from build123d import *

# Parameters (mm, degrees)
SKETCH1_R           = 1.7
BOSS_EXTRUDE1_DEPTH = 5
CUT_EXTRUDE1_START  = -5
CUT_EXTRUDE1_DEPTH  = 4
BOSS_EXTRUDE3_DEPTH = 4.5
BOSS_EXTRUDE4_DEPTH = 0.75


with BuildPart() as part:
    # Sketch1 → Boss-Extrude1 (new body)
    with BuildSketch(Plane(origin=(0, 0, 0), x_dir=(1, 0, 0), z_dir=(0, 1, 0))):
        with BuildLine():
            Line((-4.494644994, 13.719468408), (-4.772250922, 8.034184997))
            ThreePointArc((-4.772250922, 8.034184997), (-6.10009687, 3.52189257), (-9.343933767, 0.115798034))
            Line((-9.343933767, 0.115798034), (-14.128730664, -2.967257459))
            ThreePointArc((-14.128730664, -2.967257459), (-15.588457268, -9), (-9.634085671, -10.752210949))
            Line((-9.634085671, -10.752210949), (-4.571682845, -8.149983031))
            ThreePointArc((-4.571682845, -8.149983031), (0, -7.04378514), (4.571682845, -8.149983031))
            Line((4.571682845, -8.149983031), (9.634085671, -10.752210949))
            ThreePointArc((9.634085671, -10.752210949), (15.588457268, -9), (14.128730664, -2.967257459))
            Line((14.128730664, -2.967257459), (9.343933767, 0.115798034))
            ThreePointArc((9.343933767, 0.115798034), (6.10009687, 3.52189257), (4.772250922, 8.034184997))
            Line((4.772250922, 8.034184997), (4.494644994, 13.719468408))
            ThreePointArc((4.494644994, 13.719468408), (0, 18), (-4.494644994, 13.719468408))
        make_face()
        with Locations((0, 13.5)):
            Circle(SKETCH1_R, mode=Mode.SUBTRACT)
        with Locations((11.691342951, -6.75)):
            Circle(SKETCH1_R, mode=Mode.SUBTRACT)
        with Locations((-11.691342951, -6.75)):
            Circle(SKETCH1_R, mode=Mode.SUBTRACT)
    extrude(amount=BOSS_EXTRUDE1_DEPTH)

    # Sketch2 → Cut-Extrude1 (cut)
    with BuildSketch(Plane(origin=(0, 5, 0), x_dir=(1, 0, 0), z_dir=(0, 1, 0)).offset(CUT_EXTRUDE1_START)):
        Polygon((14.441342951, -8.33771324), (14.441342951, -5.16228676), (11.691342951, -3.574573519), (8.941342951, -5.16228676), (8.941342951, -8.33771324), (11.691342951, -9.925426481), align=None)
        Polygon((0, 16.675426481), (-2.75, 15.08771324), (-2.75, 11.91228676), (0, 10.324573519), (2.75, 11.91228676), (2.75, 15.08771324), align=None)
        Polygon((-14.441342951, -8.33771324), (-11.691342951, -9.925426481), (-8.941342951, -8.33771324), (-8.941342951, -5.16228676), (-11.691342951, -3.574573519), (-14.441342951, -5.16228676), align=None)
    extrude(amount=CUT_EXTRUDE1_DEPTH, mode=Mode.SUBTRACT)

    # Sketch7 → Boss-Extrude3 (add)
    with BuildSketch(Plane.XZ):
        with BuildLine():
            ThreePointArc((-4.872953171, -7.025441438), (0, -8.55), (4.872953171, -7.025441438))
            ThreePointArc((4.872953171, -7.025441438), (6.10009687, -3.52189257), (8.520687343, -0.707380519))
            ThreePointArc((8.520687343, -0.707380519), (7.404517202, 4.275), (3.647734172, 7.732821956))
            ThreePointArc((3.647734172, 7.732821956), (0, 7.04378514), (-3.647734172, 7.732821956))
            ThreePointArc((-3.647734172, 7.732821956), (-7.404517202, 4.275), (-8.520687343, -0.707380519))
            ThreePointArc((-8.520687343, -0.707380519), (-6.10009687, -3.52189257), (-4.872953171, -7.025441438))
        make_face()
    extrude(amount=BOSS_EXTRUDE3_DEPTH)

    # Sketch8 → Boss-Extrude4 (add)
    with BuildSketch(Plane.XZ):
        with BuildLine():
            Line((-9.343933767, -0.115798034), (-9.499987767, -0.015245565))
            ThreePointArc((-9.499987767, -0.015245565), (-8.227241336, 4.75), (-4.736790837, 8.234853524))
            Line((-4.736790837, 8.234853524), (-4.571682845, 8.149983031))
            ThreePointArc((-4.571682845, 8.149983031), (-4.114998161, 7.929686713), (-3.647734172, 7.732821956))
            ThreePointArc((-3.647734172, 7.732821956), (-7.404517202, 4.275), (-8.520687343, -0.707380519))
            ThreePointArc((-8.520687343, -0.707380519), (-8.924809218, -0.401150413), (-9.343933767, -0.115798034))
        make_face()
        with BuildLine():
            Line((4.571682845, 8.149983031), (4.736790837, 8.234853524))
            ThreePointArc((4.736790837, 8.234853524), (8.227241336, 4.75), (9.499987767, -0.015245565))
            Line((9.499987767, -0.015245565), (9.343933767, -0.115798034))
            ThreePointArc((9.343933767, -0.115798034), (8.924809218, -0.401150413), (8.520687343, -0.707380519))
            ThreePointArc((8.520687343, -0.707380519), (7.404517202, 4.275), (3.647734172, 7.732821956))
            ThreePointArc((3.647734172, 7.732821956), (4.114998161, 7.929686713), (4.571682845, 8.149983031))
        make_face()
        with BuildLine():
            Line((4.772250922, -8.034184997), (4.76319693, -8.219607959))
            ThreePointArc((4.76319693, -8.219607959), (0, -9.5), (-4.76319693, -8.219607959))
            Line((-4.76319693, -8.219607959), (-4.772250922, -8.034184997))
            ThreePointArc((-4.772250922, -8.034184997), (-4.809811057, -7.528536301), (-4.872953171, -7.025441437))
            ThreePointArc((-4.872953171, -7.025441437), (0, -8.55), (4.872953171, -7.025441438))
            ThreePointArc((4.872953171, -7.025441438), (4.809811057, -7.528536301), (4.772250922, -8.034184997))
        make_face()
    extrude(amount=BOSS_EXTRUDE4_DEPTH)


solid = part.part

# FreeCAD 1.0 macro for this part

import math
import FreeCAD as App
import Part
import Sketcher
Q = App.Units.Quantity


def add_polygon(sketch, points):
    """Adds a closed chain of lines whose ends are joined by coincident constraints."""
    first, n = sketch.GeometryCount, len(points)
    for a, b in zip(points, points[1:] + points[:1]):
        sketch.addGeometry(Part.LineSegment(App.Vector(*a, 0), App.Vector(*b, 0)), False)
    for i in range(n):
        sketch.addConstraint(Sketcher.Constraint("Coincident", first + i, 2, first + (i + 1) % n, 1))

doc = App.newDocument("Part")
body = doc.addObject("PartDesign::Body", "Body")

# Sketch on XZ plane
sketch1 = doc.addObject("Sketcher::SketchObject", "Sketch")
body.addObject(sketch1)
sketch1.AttachmentSupport = (doc.XZ_Plane, [""])
sketch1.MapMode = "FlatFace"
sketch1.addGeometry(Part.LineSegment(App.Vector(-4.494645, -13.719468, 0), App.Vector(-4.772251, -8.034185, 0)), False)
sketch1.addGeometry(Part.ArcOfCircle(Part.Circle(App.Vector(-14.760351, -8.521893, 0), App.Vector(0, 0, 1), 10), math.radians(2.795468), math.radians(57.204532)), False)
sketch1.addGeometry(Part.LineSegment(App.Vector(-9.343934, -0.115798, 0), App.Vector(-14.128731, 2.967257, 0)), False)
sketch1.addGeometry(Part.ArcOfCircle(Part.Circle(App.Vector(-11.691343, 6.75, 0), App.Vector(0, 0, 1), 4.5), math.radians(62.795468), math.radians(237.204532)), False)
sketch1.addGeometry(Part.LineSegment(App.Vector(-9.634086, 10.752211, 0), App.Vector(-4.571683, 8.149983, 0)), False)
sketch1.addGeometry(Part.ArcOfCircle(Part.Circle(App.Vector(0, 17.043785, 0), App.Vector(0, 0, 1), 10), math.radians(-117.204532), math.radians(-62.795468)), False)
sketch1.addGeometry(Part.LineSegment(App.Vector(4.571683, 8.149983, 0), App.Vector(9.634086, 10.752211, 0)), False)
sketch1.addGeometry(Part.ArcOfCircle(Part.Circle(App.Vector(11.691343, 6.75, 0), App.Vector(0, 0, 1), 4.5), math.radians(-57.204532), math.radians(117.204532)), False)
sketch1.addGeometry(Part.LineSegment(App.Vector(14.128731, 2.967257, 0), App.Vector(9.343934, -0.115798, 0)), False)
sketch1.addGeometry(Part.ArcOfCircle(Part.Circle(App.Vector(14.760351, -8.521893, 0), App.Vector(0, 0, 1), 10), math.radians(122.795468), math.radians(177.204532)), False)
sketch1.addGeometry(Part.LineSegment(App.Vector(4.772251, -8.034185, 0), App.Vector(4.494645, -13.719468, 0)), False)
sketch1.addGeometry(Part.ArcOfCircle(Part.Circle(App.Vector(0, -13.5, 0), App.Vector(0, 0, 1), 4.5), math.radians(-177.204532), math.radians(-2.795468)), False)
sketch1.addGeometry(Part.Circle(App.Vector(-11.691343, 6.75, 0), App.Vector(0, 0, 1), 1.7), False)
sketch1.addGeometry(Part.Circle(App.Vector(11.691343, 6.75, 0), App.Vector(0, 0, 1), 1.7), False)
sketch1.addGeometry(Part.Circle(App.Vector(0, -13.5, 0), App.Vector(0, 0, 1), 1.7), False)
sketch1.addConstraint(Sketcher.Constraint("Tangent", 0, 2, 1, 1))
sketch1.addConstraint(Sketcher.Constraint("Tangent", 1, 2, 2, 1))
sketch1.addConstraint(Sketcher.Constraint("Tangent", 2, 2, 3, 2))
sketch1.addConstraint(Sketcher.Constraint("Tangent", 3, 1, 4, 1))
sketch1.addConstraint(Sketcher.Constraint("Tangent", 4, 2, 5, 1))
sketch1.addConstraint(Sketcher.Constraint("Tangent", 5, 2, 6, 1))
sketch1.addConstraint(Sketcher.Constraint("Tangent", 6, 2, 7, 2))
sketch1.addConstraint(Sketcher.Constraint("Tangent", 7, 1, 8, 1))
sketch1.addConstraint(Sketcher.Constraint("Tangent", 8, 2, 9, 1))
sketch1.addConstraint(Sketcher.Constraint("Tangent", 9, 2, 10, 1))
sketch1.addConstraint(Sketcher.Constraint("Tangent", 10, 2, 11, 2))
sketch1.addConstraint(Sketcher.Constraint("Tangent", 11, 1, 0, 1))
sketch1.addConstraint(Sketcher.Constraint("Coincident", 12, 3, 3, 3))
sketch1.addConstraint(Sketcher.Constraint("Coincident", 13, 3, 7, 3))
sketch1.addConstraint(Sketcher.Constraint("Coincident", 14, 3, 11, 3))
sketch1.addConstraint(Sketcher.Constraint("Equal", 1, 5))
sketch1.addConstraint(Sketcher.Constraint("Equal", 3, 7))
sketch1.addConstraint(Sketcher.Constraint("Equal", 5, 9))
sketch1.addConstraint(Sketcher.Constraint("Equal", 7, 11))
sketch1.addConstraint(Sketcher.Constraint("Equal", 12, 13))
sketch1.addConstraint(Sketcher.Constraint("Equal", 13, 14))
sketch1.addConstraint(Sketcher.Constraint("Symmetric", 3, 3, 7, 3, -2))
sketch1.addConstraint(Sketcher.Constraint("Symmetric", 1, 3, 9, 3, -2))
sketch1.addConstraint(Sketcher.Constraint("PointOnObject", 5, 3, -2))
sketch1.addConstraint(Sketcher.Constraint("PointOnObject", 11, 3, -2))
sketch1.addConstraint(Sketcher.Constraint("Equal", 0, 2))
sketch1.addConstraint(Sketcher.Constraint("Equal", 2, 4))
sketch1.addConstraint(Sketcher.Constraint("Radius", 1, Q("10 mm")))
sketch1.addConstraint(Sketcher.Constraint("Diameter", 12, Q("3.4 mm")))
sketch1.addConstraint(Sketcher.Constraint("Radius", 3, Q("4.5 mm")))
sketch1.addConstraint(Sketcher.Constraint("DistanceY", 11, 3, -1, 1, Q("13.5 mm")))
sketch1.addConstraint(Sketcher.Constraint("DistanceY", -1, 1, 3, 3, Q("6.75 mm")))
sketch1.addConstraint(Sketcher.Constraint("DistanceY", 1, 2, -1, 1, Q("0.115798 mm")))
sketch1.addConstraint(Sketcher.Constraint("DistanceX", 1, 3, 9, 3, Q("29.520702 mm")))
pad1 = doc.addObject("PartDesign::Pad", "Pad")
body.addObject(pad1)
pad1.Profile = sketch1
pad1.Length = 5
pad1.Reversed = True

# Sketch on XZ plane
sketch2 = doc.addObject("Sketcher::SketchObject", "Sketch001")
body.addObject(sketch2)
sketch2.AttachmentSupport = (doc.XZ_Plane, [""])
sketch2.MapMode = "FlatFace"
add_polygon(sketch2, [(14.441343, 8.337713), (14.441343, 5.162287), (11.691343, 3.574574), (8.941343, 5.162287), (8.941343, 8.337713), (11.691343, 9.925426)])  # lines 0-5
add_polygon(sketch2, [(0, -16.675426), (-2.75, -15.087713), (-2.75, -11.912287), (0, -10.324574), (2.75, -11.912287), (2.75, -15.087713)])  # lines 6-11
add_polygon(sketch2, [(-14.441343, 8.337713), (-11.691343, 9.925426), (-8.941343, 8.337713), (-8.941343, 5.162287), (-11.691343, 3.574574), (-14.441343, 5.162287)])  # lines 12-17
sketch2.addConstraint(Sketcher.Constraint("Vertical", 0))
sketch2.addConstraint(Sketcher.Constraint("Vertical", 3))
sketch2.addConstraint(Sketcher.Constraint("Vertical", 7))
sketch2.addConstraint(Sketcher.Constraint("Vertical", 10))
sketch2.addConstraint(Sketcher.Constraint("Vertical", 14))
sketch2.addConstraint(Sketcher.Constraint("Vertical", 17))
sketch2.addConstraint(Sketcher.Constraint("Symmetric", 7, 2, 9, 2, -2))
sketch2.addConstraint(Sketcher.Constraint("Symmetric", 4, 2, 12, 2, -2))
sketch2.addConstraint(Sketcher.Constraint("Symmetric", 3, 2, 13, 2, -2))
sketch2.addConstraint(Sketcher.Constraint("Symmetric", 1, 2, 15, 2, -2))
sketch2.addConstraint(Sketcher.Constraint("Symmetric", 0, 2, 16, 2, -2))
sketch2.addConstraint(Sketcher.Constraint("PointOnObject", 8, 2, -2))
sketch2.addConstraint(Sketcher.Constraint("PointOnObject", 11, 2, -2))
sketch2.addConstraint(Sketcher.Constraint("Parallel", 1, 4))
sketch2.addConstraint(Sketcher.Constraint("Parallel", 2, 5))
sketch2.addConstraint(Sketcher.Constraint("Parallel", 5, 6))
sketch2.addConstraint(Sketcher.Constraint("Parallel", 4, 8))
sketch2.addConstraint(Sketcher.Constraint("Parallel", 6, 9))
sketch2.addConstraint(Sketcher.Constraint("Parallel", 8, 11))
sketch2.addConstraint(Sketcher.Constraint("Parallel", 11, 12))
sketch2.addConstraint(Sketcher.Constraint("Parallel", 12, 15))
sketch2.addConstraint(Sketcher.Constraint("Horizontal", 0, 2, 2, 2))
sketch2.addConstraint(Sketcher.Constraint("Horizontal", 3, 2, 5, 2))
sketch2.addConstraint(Sketcher.Constraint("Equal", 3, 7))
sketch2.addConstraint(Sketcher.Constraint("Equal", 5, 6))
sketch2.addConstraint(Sketcher.Constraint("Angle", 1, Q("-150 deg")))
sketch2.addConstraint(Sketcher.Constraint("DistanceX", 2, 2, 0, 2, Q("5.5 mm")))
sketch2.addConstraint(Sketcher.Constraint("DistanceY", 6, 2, 2, 2, Q("20.25 mm")))
sketch2.addConstraint(Sketcher.Constraint("DistanceY", 0, 2, 0, 1, Q("3.175426 mm")))
sketch2.addConstraint(Sketcher.Constraint("DistanceX", -1, 1, 0, 2, Q("14.441343 mm")))
sketch2.addConstraint(Sketcher.Constraint("DistanceY", -1, 1, 0, 2, Q("5.162287 mm")))
pocket1 = doc.addObject("PartDesign::Pocket", "Pocket")
body.addObject(pocket1)
pocket1.Profile = sketch2
pocket1.Length = 4

# Sketch on XZ plane
sketch3 = doc.addObject("Sketcher::SketchObject", "Sketch002")
body.addObject(sketch3)
sketch3.AttachmentSupport = (doc.XZ_Plane, [""])
sketch3.MapMode = "FlatFace"
sketch3.addGeometry(Part.ArcOfCircle(Part.Circle(App.Vector(0, 0, 0), App.Vector(0, 0, 1), 8.55), math.radians(-124.745766), math.radians(-55.254234)), False)
sketch3.addGeometry(Part.ArcOfCircle(Part.Circle(App.Vector(14.760351, -8.521893, 0), App.Vector(0, 0, 1), 10), math.radians(128.606361), math.radians(171.393639)), False)
sketch3.addGeometry(Part.ArcOfCircle(Part.Circle(App.Vector(0, 0, 0), App.Vector(0, 0, 1), 8.55), math.radians(-4.745766), math.radians(64.745766)), False)
sketch3.addGeometry(Part.ArcOfCircle(Part.Circle(App.Vector(0, 17.043785, 0), App.Vector(0, 0, 1), 10), math.radians(-111.393639), math.radians(-68.606361)), False)
sketch3.addGeometry(Part.ArcOfCircle(Part.Circle(App.Vector(0, 0, 0), App.Vector(0, 0, 1), 8.55), math.radians(115.254234), math.radians(184.745766)), False)
sketch3.addGeometry(Part.ArcOfCircle(Part.Circle(App.Vector(-14.760351, -8.521893, 0), App.Vector(0, 0, 1), 10), math.radians(8.606361), math.radians(51.393639)), False)
sketch3.addConstraint(Sketcher.Constraint("Coincident", 0, 2, 1, 2))
sketch3.addConstraint(Sketcher.Constraint("Coincident", 1, 1, 2, 1))
sketch3.addConstraint(Sketcher.Constraint("Coincident", 2, 2, 3, 2))
sketch3.addConstraint(Sketcher.Constraint("Coincident", 3, 1, 4, 1))
sketch3.addConstraint(Sketcher.Constraint("Coincident", 4, 2, 5, 2))
sketch3.addConstraint(Sketcher.Constraint("Coincident", 5, 1, 0, 1))
sketch3.addConstraint(Sketcher.Constraint("Coincident", 0, 3, -1, 1))
sketch3.addConstraint(Sketcher.Constraint("Coincident", 2, 3, -1, 1))
sketch3.addConstraint(Sketcher.Constraint("Coincident", 4, 3, -1, 1))
sketch3.addConstraint(Sketcher.Constraint("Equal", 0, 2))
sketch3.addConstraint(Sketcher.Constraint("Equal", 1, 3))
sketch3.addConstraint(Sketcher.Constraint("Equal", 2, 4))
sketch3.addConstraint(Sketcher.Constraint("Equal", 3, 5))
sketch3.addConstraint(Sketcher.Constraint("Symmetric", 1, 3, 5, 3, -2))
sketch3.addConstraint(Sketcher.Constraint("PointOnObject", 3, 3, -2))
sketch3.addConstraint(Sketcher.Constraint("Radius", 1, Q("10 mm")))
sketch3.addConstraint(Sketcher.Constraint("Radius", 0, Q("8.55 mm")))
sketch3.addConstraint(Sketcher.Constraint("DistanceX", 5, 3, 1, 3, Q("29.520702 mm")))
sketch3.addConstraint(Sketcher.Constraint("DistanceY", 0, 2, -1, 1, Q("7.025441 mm")))
sketch3.addConstraint(Sketcher.Constraint("DistanceY", -1, 1, 2, 2, Q("7.732822 mm")))
pad2 = doc.addObject("PartDesign::Pad", "Pad001")
body.addObject(pad2)
pad2.Profile = sketch3
pad2.Length = 4.5

# Sketch on XZ plane
sketch4 = doc.addObject("Sketcher::SketchObject", "Sketch003")
body.addObject(sketch4)
sketch4.AttachmentSupport = (doc.XZ_Plane, [""])
sketch4.MapMode = "FlatFace"
sketch4.addGeometry(Part.LineSegment(App.Vector(-9.499988, -0.015246, 0), App.Vector(-9.343934, -0.115798, 0)), False)
sketch4.addGeometry(Part.ArcOfCircle(Part.Circle(App.Vector(-14.760351, -8.521893, 0), App.Vector(0, 0, 1), 10), math.radians(51.393639), math.radians(57.204532)), False)
sketch4.addGeometry(Part.ArcOfCircle(Part.Circle(App.Vector(0, 0, 0), App.Vector(0, 0, 1), 8.55), math.radians(115.254234), math.radians(184.745766)), False)
sketch4.addGeometry(Part.ArcOfCircle(Part.Circle(App.Vector(0, 17.043785, 0), App.Vector(0, 0, 1), 10), math.radians(-117.204533), math.radians(-111.393639)), False)
sketch4.addGeometry(Part.LineSegment(App.Vector(-4.571683, 8.149983, 0), App.Vector(-4.736791, 8.234854, 0)), False)
sketch4.addGeometry(Part.ArcOfCircle(Part.Circle(App.Vector(0, 0, 0), App.Vector(0, 0, 1), 9.5), math.radians(119.908052), math.radians(180.091948)), False)
sketch4.addGeometry(Part.LineSegment(App.Vector(4.736791, 8.234854, 0), App.Vector(4.571683, 8.149983, 0)), False)
sketch4.addGeometry(Part.ArcOfCircle(Part.Circle(App.Vector(0, 17.043785, 0), App.Vector(0, 0, 1), 10), math.radians(-68.606361), math.radians(-62.795467)), False)
sketch4.addGeometry(Part.ArcOfCircle(Part.Circle(App.Vector(0, 0, 0), App.Vector(0, 0, 1), 8.55), math.radians(-4.745766), math.radians(64.745766)), False)
sketch4.addGeometry(Part.ArcOfCircle(Part.Circle(App.Vector(14.760351, -8.521893, 0), App.Vector(0, 0, 1), 10), math.radians(122.795468), math.radians(128.606361)), False)
sketch4.addGeometry(Part.LineSegment(App.Vector(9.343934, -0.115798, 0), App.Vector(9.499988, -0.015246, 0)), False)
sketch4.addGeometry(Part.ArcOfCircle(Part.Circle(App.Vector(0, 0, 0), App.Vector(0, 0, 1), 9.5), math.radians(-0.091948), math.radians(60.091948)), False)
sketch4.addGeometry(Part.LineSegment(App.Vector(4.763197, -8.219608, 0), App.Vector(4.772251, -8.034185, 0)), False)
sketch4.addGeometry(Part.ArcOfCircle(Part.Circle(App.Vector(14.760351, -8.521893, 0), App.Vector(0, 0, 1), 10), math.radians(171.393639), math.radians(177.204532)), False)
sketch4.addGeometry(Part.ArcOfCircle(Part.Circle(App.Vector(0, 0, 0), App.Vector(0, 0, 1), 8.55), math.radians(-124.745766), math.radians(-55.254234)), False)
sketch4.addGeometry(Part.ArcOfCircle(Part.Circle(App.Vector(-14.760351, -8.521893, 0), App.Vector(0, 0, 1), 10), math.radians(2.795468), math.radians(8.606361)), False)
sketch4.addGeometry(Part.LineSegment(App.Vector(-4.772251, -8.034185, 0), App.Vector(-4.763197, -8.219608, 0)), False)
sketch4.addGeometry(Part.ArcOfCircle(Part.Circle(App.Vector(0, 0, 0), App.Vector(0, 0, 1), 9.5), math.radians(-120.091948), math.radians(-59.908052)), False)
sketch4.addConstraint(Sketcher.Constraint("Tangent", 0, 2, 1, 2))
sketch4.addConstraint(Sketcher.Constraint("Coincident", 1, 1, 2, 2))
sketch4.addConstraint(Sketcher.Constraint("Coincident", 2, 1, 3, 2))
sketch4.addConstraint(Sketcher.Constraint("Tangent", 3, 1, 4, 1))
sketch4.addConstraint(Sketcher.Constraint("Coincident", 4, 2, 5, 1))
sketch4.addConstraint(Sketcher.Constraint("Coincident", 5, 2, 0, 1))
sketch4.addConstraint(Sketcher.Constraint("Tangent", 6, 2, 7, 2))
sketch4.addConstraint(Sketcher.Constraint("Coincident", 7, 1, 8, 2))
sketch4.addConstraint(Sketcher.Constraint("Coincident", 8, 1, 9, 2))
sketch4.addConstraint(Sketcher.Constraint("Tangent", 9, 1, 10, 1))
sketch4.addConstraint(Sketcher.Constraint("Coincident", 10, 2, 11, 1))
sketch4.addConstraint(Sketcher.Constraint("Coincident", 11, 2, 6, 1))
sketch4.addConstraint(Sketcher.Constraint("Tangent", 12, 2, 13, 2))
sketch4.addConstraint(Sketcher.Constraint("Coincident", 13, 1, 14, 2))
sketch4.addConstraint(Sketcher.Constraint("Coincident", 14, 1, 15, 2))
sketch4.addConstraint(Sketcher.Constraint("Tangent", 15, 1, 16, 1))
sketch4.addConstraint(Sketcher.Constraint("Coincident", 16, 2, 17, 1))
sketch4.addConstraint(Sketcher.Constraint("Coincident", 17, 2, 12, 1))
sketch4.addConstraint(Sketcher.Constraint("Coincident", 2, 3, -1, 1))
sketch4.addConstraint(Sketcher.Constraint("Coincident", 5, 3, -1, 1))
sketch4.addConstraint(Sketcher.Constraint("Coincident", 8, 3, -1, 1))
sketch4.addConstraint(Sketcher.Constraint("Coincident", 11, 3, -1, 1))
sketch4.addConstraint(Sketcher.Constraint("Coincident", 14, 3, -1, 1))
sketch4.addConstraint(Sketcher.Constraint("Coincident", 17, 3, -1, 1))
sketch4.addConstraint(Sketcher.Constraint("Coincident", 7, 3, 3, 3))
sketch4.addConstraint(Sketcher.Constraint("Coincident", 13, 3, 9, 3))
sketch4.addConstraint(Sketcher.Constraint("Coincident", 15, 3, 1, 3))
sketch4.addConstraint(Sketcher.Constraint("Equal", 1, 3))
sketch4.addConstraint(Sketcher.Constraint("Equal", 3, 7))
sketch4.addConstraint(Sketcher.Constraint("Equal", 2, 8))
sketch4.addConstraint(Sketcher.Constraint("Equal", 7, 9))
sketch4.addConstraint(Sketcher.Constraint("Equal", 5, 11))
sketch4.addConstraint(Sketcher.Constraint("Equal", 9, 13))
sketch4.addConstraint(Sketcher.Constraint("Equal", 8, 14))
sketch4.addConstraint(Sketcher.Constraint("Equal", 13, 15))
sketch4.addConstraint(Sketcher.Constraint("Equal", 11, 17))
sketch4.addConstraint(Sketcher.Constraint("Symmetric", 1, 3, 9, 3, -2))
sketch4.addConstraint(Sketcher.Constraint("Symmetric", 3, 1, 6, 2, -2))
sketch4.addConstraint(Sketcher.Constraint("Horizontal", 0, 2, 9, 1))
sketch4.addConstraint(Sketcher.Constraint("Horizontal", 12, 2, 15, 1))
sketch4.addConstraint(Sketcher.Constraint("Equal", 0, 4))
sketch4.addConstraint(Sketcher.Constraint("Equal", 10, 12))
sketch4.addConstraint(Sketcher.Constraint("Radius", 1, Q("10 mm")))
sketch4.addConstraint(Sketcher.Constraint("Radius", 5, Q("9.5 mm")))
sketch4.addConstraint(Sketcher.Constraint("Radius", 2, Q("8.55 mm")))
sketch4.addConstraint(Sketcher.Constraint("DistanceY", 0, 2, -1, 1, Q("0.115798 mm")))
sketch4.addConstraint(Sketcher.Constraint("DistanceX", 5, 2, 1, 1, Q("0.9793 mm")))
sketch4.addConstraint(Sketcher.Constraint("DistanceX", 1, 3, -1, 1, Q("14.760351 mm")))
sketch4.addConstraint(Sketcher.Constraint("DistanceY", -1, 1, 2, 1, Q("7.732822 mm")))
pad3 = doc.addObject("PartDesign::Pad", "Pad002")
body.addObject(pad3)
pad3.Profile = sketch4
pad3.Length = 0.75

doc.recompute()
